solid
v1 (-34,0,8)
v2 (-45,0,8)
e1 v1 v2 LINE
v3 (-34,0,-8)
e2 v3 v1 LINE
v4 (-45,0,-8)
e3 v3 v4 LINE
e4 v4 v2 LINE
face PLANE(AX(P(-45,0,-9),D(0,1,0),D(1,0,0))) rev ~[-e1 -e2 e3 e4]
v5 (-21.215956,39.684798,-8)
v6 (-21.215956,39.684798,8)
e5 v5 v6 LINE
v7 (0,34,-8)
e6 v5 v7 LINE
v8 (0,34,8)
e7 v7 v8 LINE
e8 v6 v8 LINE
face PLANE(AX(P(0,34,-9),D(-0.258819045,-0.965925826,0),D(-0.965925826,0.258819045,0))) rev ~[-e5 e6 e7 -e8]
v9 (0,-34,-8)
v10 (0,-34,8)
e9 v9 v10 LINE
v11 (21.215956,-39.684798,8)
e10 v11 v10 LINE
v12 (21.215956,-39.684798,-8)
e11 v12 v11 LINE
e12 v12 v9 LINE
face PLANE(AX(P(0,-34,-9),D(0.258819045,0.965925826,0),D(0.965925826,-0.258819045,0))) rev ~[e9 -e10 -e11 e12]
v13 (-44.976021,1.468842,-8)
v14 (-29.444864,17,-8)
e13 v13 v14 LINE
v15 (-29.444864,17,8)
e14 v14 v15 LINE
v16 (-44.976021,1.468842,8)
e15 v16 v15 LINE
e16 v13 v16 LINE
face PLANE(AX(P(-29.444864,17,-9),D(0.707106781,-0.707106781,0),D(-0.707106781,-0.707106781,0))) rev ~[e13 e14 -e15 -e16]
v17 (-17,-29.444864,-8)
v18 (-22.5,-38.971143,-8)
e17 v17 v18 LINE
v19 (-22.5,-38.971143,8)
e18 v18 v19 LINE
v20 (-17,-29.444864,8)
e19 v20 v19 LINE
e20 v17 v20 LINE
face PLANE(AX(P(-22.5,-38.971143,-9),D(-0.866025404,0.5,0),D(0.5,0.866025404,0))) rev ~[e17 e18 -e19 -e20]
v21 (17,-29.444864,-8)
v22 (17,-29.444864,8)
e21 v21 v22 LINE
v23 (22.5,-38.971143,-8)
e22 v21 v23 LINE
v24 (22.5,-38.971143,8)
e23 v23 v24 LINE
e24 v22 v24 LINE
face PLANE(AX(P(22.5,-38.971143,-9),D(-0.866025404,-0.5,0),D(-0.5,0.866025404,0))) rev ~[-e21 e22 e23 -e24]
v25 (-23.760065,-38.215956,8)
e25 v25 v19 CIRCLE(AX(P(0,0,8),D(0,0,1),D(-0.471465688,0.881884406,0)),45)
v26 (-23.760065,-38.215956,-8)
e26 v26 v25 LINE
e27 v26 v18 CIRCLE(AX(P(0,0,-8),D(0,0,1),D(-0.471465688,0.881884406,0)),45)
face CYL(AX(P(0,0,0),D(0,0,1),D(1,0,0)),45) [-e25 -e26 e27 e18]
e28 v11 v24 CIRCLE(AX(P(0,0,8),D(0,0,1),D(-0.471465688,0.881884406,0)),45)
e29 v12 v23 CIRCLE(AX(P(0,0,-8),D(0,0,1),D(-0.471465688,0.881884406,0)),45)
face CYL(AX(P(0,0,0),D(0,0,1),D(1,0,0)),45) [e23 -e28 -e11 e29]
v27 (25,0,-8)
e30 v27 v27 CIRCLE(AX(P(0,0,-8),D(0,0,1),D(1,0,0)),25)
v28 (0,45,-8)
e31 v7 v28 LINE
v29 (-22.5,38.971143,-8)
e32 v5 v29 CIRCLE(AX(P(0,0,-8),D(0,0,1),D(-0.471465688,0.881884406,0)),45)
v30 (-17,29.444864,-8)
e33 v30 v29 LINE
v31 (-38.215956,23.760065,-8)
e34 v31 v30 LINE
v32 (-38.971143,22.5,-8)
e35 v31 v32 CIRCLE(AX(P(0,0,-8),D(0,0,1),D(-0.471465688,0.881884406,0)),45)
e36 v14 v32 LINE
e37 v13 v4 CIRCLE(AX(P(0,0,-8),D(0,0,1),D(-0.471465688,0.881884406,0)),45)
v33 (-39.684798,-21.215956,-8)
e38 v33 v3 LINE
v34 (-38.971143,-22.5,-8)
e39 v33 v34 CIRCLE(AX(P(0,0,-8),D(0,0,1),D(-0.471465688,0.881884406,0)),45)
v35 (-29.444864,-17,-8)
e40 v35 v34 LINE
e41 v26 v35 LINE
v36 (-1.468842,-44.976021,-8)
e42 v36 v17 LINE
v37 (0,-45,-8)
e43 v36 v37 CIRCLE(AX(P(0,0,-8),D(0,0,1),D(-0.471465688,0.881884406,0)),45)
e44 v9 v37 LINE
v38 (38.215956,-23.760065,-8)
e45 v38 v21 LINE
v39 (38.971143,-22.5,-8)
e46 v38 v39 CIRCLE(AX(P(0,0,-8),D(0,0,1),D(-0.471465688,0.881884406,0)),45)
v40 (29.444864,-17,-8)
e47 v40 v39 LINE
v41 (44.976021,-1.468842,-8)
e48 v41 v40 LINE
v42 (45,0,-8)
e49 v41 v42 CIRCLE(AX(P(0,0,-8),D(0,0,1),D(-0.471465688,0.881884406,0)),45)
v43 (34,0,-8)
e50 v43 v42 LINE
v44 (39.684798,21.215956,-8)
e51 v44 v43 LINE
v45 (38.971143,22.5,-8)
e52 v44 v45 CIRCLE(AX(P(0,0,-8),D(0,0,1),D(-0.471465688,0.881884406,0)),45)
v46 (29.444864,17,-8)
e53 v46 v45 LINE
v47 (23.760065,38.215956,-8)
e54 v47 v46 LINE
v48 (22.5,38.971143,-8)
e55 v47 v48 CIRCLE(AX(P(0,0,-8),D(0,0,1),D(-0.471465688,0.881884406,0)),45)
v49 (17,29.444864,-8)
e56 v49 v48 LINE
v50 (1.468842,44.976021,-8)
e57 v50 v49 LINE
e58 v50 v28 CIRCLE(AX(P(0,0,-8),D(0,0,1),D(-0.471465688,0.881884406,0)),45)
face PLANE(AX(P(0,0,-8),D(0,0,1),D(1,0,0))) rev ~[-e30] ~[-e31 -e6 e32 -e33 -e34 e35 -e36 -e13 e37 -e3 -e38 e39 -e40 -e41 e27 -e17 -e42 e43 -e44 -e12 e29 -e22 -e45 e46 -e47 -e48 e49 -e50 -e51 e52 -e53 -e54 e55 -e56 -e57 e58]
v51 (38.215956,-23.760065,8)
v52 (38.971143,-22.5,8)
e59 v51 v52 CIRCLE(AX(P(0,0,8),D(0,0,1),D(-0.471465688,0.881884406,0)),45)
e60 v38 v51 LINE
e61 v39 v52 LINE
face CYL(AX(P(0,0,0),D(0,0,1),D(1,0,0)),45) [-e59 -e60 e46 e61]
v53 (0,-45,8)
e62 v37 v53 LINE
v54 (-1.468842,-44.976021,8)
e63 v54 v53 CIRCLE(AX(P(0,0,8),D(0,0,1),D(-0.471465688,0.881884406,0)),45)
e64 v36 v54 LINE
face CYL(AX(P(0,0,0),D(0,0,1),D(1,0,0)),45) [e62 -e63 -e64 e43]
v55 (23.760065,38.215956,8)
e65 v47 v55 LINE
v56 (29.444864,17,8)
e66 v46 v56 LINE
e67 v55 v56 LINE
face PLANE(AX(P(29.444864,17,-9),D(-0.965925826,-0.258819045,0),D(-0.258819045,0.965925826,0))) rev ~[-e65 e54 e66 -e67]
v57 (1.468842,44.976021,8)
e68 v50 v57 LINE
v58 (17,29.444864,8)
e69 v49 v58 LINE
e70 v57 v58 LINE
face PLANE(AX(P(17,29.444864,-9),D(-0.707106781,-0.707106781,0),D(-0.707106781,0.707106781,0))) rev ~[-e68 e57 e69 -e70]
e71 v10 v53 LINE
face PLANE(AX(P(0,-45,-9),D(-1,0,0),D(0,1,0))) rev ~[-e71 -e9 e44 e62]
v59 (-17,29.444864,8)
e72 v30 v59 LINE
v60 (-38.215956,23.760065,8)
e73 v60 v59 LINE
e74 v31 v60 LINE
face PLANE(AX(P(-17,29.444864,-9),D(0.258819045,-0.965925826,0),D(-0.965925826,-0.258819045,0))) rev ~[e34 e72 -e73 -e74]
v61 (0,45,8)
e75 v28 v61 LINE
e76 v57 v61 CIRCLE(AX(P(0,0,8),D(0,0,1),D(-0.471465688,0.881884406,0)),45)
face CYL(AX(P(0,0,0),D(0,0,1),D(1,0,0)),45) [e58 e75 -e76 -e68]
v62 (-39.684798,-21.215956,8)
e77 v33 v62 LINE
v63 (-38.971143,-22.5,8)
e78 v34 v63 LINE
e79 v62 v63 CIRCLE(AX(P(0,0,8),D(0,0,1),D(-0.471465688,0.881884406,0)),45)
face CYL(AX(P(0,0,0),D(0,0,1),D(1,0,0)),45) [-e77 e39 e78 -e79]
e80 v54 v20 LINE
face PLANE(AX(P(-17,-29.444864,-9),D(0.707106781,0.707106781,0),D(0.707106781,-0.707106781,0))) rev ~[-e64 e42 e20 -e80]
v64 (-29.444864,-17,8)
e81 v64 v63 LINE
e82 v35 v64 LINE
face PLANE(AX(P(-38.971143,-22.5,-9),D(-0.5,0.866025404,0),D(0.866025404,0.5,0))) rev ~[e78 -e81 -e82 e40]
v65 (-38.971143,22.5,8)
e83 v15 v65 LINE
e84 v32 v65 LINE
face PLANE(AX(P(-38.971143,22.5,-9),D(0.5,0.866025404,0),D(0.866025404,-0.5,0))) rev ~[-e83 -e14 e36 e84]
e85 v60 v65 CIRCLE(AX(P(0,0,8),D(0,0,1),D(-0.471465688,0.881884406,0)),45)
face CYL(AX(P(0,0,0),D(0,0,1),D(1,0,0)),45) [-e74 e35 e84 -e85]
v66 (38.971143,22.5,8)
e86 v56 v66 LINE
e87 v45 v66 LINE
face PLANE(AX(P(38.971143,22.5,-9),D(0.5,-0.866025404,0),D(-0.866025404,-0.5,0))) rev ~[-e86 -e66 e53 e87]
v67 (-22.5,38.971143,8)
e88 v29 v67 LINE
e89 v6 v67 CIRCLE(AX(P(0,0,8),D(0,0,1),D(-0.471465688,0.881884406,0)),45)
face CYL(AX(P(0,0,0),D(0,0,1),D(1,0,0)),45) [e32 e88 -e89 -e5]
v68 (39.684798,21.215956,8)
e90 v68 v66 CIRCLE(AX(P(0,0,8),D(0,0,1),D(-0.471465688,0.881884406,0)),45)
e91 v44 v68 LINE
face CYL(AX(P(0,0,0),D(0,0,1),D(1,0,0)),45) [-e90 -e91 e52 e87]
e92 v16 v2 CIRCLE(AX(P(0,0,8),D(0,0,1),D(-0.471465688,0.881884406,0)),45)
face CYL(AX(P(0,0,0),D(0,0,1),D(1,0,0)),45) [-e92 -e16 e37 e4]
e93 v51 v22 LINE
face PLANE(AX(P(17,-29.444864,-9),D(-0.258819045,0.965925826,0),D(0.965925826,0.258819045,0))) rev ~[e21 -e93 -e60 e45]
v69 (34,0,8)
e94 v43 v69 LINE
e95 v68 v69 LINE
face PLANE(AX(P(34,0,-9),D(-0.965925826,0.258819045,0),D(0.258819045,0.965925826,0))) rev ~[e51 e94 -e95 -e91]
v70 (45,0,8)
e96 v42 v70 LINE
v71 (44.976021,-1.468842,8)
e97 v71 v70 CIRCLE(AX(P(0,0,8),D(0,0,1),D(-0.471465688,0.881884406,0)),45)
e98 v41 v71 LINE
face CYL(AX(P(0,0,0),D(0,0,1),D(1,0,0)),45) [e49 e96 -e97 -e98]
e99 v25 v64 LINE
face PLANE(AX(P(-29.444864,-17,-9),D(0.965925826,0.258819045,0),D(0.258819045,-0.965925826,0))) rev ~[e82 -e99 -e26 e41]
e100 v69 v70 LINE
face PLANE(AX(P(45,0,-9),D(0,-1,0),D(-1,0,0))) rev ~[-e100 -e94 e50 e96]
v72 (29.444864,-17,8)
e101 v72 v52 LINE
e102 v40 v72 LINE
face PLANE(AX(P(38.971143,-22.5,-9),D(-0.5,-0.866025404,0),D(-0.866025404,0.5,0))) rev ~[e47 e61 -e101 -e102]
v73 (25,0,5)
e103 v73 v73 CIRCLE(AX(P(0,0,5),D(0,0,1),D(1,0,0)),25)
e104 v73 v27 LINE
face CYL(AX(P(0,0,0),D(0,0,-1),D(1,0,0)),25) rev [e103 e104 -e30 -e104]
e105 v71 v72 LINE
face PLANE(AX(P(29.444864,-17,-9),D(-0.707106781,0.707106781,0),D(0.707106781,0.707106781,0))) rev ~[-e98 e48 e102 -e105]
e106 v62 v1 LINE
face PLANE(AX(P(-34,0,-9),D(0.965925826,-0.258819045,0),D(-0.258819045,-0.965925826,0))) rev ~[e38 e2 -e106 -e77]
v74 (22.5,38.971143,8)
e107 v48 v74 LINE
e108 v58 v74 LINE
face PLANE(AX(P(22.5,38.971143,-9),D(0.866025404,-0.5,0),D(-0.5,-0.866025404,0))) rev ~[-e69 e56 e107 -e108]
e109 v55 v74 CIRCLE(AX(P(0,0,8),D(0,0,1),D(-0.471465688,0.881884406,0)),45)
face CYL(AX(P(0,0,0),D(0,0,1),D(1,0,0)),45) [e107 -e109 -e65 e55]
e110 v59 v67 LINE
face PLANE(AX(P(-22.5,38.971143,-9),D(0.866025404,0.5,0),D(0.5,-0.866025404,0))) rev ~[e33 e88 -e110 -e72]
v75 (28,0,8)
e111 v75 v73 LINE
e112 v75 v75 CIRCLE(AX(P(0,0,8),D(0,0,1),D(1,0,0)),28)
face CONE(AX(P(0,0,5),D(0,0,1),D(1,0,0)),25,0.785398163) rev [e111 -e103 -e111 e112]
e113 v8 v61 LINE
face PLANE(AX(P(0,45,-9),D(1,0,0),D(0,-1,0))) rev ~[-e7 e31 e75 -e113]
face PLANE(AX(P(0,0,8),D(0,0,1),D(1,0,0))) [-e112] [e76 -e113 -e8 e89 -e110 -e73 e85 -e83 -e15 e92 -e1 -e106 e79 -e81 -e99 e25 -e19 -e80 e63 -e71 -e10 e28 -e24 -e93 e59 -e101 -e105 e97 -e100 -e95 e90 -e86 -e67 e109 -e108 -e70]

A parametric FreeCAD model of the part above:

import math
import FreeCAD as App
import Part
import Sketcher
Q = App.Units.Quantity


def edges_at(feature, points):
    """Names of the edges that pass closest to the given points."""
    edges = feature.Shape.Edges
    near = lambda p: min(range(len(edges)), key=lambda i: edges[i].distToShape(Part.Vertex(*p))[0])
    return sorted({f"Edge{near(p) + 1}" for p in points})

doc = App.newDocument("Part")
body = doc.addObject("PartDesign::Body", "Body")

sketch1 = body.newObject("Sketcher::SketchObject", "Sketch")
sketch1.AttachmentSupport = (doc.getObject("XY_Plane"), [""])
sketch1.MapMode = "FlatFace"
sketch1.addGeometry([
    Part.Circle(App.Vector(0, 0, 0), App.Vector(0, 0, 1), 45),
    Part.Circle(App.Vector(0, 0, 0), App.Vector(0, 0, 1), 25),
], False)
sketch1.addConstraint([
    Sketcher.Constraint("Coincident", 0, 3, -1, 1),
    Sketcher.Constraint("Coincident", 1, 3, -1, 1),
    Sketcher.Constraint("Diameter", 0, Q("90 mm")),
    Sketcher.Constraint("Diameter", 1, Q("50 mm")),
])
pad1 = body.newObject("PartDesign::Pad", "Pad")
pad1.Profile = sketch1
pad1.Length = 16
pad1.Midplane = True
doc.recompute()

chamfer = body.newObject("PartDesign::Chamfer", "Chamfer")
chamfer.Base = (pad1, edges_at(pad1, [(-25, 0, 8)]))
chamfer.Size = 3

sketch2 = body.newObject("Sketcher::SketchObject", "Sketch001")
sketch2.AttachmentSupport = (doc.getObject("XY_Plane"), [""])
sketch2.MapMode = "FlatFace"
sketch2.AttachmentOffset = App.Placement(App.Vector(0, 0, -9), App.Rotation())
sketch2.addGeometry([
    Part.LineSegment(App.Vector(0, 34, 0), App.Vector(0, 45, 0)),
    Part.ArcOfCircle(Part.Circle(App.Vector(0, 0, 0), App.Vector(0, 0, 1), 45), math.radians(90), math.radians(118)),
    Part.LineSegment(App.Vector(-21, 40, 0), App.Vector(0, 34, 0)),
], False)
sketch2.addConstraint([
    Sketcher.Constraint("Coincident", 0, 2, 1, 1),
    Sketcher.Constraint("Coincident", 1, 2, 2, 1),
    Sketcher.Constraint("Coincident", 2, 2, 0, 1),
    Sketcher.Constraint("Vertical", 0),
    Sketcher.Constraint("Coincident", 1, 3, -1, 1),
    Sketcher.Constraint("PointOnObject", 0, 2, -2),
    Sketcher.Constraint("Radius", 1, Q("45 mm")),
    Sketcher.Constraint("DistanceY", 0, 1, 0, 2, Q("11 mm")),
    Sketcher.Constraint("Angle", 2, Q("-15 deg")),
])
pocket1 = body.newObject("PartDesign::Pocket", "Pocket")
pocket1.Profile = sketch2
pocket1.Length = 18
pocket1.Reversed = True
doc.recompute()

polarpattern = body.newObject("PartDesign::PolarPattern", "PolarPattern")
polarpattern.Originals = [pocket1]
polarpattern.Axis = (doc.getObject("Z_Axis"), [""])
polarpattern.Angle = 360
polarpattern.Occurrences = 12
body.Tip = polarpattern

doc.recompute()
